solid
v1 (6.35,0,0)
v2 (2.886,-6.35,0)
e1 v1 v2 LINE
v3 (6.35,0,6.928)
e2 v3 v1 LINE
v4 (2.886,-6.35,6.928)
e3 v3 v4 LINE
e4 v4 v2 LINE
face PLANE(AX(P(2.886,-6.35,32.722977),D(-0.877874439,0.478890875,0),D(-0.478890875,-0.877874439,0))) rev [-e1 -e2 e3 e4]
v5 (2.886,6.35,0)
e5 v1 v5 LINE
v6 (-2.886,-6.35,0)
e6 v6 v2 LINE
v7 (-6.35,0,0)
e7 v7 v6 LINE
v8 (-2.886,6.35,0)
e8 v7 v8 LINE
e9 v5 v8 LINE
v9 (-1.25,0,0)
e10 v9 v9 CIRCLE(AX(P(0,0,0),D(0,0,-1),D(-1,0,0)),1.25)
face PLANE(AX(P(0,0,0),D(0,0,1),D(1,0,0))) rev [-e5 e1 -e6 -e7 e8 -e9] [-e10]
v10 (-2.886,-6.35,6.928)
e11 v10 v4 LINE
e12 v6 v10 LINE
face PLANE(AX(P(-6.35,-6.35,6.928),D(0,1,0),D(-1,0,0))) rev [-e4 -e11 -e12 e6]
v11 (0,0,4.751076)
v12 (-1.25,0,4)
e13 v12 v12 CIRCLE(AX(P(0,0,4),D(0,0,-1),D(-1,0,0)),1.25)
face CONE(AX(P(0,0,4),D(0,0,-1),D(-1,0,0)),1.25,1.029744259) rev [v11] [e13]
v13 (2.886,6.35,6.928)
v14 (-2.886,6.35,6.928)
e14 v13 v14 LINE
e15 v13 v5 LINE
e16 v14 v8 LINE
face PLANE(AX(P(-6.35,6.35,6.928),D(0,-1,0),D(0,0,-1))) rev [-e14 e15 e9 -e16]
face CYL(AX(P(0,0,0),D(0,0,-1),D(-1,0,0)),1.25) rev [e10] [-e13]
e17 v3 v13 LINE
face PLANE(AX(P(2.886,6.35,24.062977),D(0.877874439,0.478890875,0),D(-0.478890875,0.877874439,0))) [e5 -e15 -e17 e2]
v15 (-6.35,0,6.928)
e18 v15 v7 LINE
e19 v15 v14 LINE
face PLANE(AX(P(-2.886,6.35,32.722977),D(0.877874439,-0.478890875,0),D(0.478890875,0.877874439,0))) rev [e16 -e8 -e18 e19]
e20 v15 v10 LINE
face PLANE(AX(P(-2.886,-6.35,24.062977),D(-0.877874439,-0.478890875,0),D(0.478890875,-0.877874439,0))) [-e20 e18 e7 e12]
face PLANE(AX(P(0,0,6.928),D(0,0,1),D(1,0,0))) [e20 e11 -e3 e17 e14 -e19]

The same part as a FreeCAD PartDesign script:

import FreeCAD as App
import Part
import Sketcher


def add_polygon(sketch, points):
    """Adds a closed chain of lines whose ends are joined by coincident constraints."""
    first, n = sketch.GeometryCount, len(points)
    for a, b in zip(points, points[1:] + points[:1]):
        sketch.addGeometry(Part.LineSegment(App.Vector(*a, 0), App.Vector(*b, 0)), False)
    for i in range(n):
        sketch.addConstraint(Sketcher.Constraint("Coincident", first + i, 2, first + (i + 1) % n, 1))

doc = App.newDocument("Part")
body = doc.addObject("PartDesign::Body", "Body")

# Sketch on XY plane
sketch1 = doc.addObject("Sketcher::SketchObject", "Sketch")
body.addObject(sketch1)
sketch1.AttachmentSupport = (doc.XY_Plane, [""])
sketch1.MapMode = "FlatFace"
add_polygon(sketch1, [(-6, 6), (-6, -6), (6, -6), (6, 6)])  # lines 0-3
sketch1.addConstraint([
    Sketcher.Constraint("Vertical", 0),
    Sketcher.Constraint("Horizontal", 1),
    Sketcher.Constraint("Vertical", 2),
    Sketcher.Constraint("Horizontal", 3),
    Sketcher.Constraint("Symmetric", 0, 2, 2, 2, -1, 1),
    Sketcher.Constraint("Equal", 3, 0),
    Sketcher.Constraint("DistanceX", 1, 1, 1, 2, 12.7),
])
pad1 = doc.addObject("PartDesign::Pad", "Pad")
body.addObject(pad1)
pad1.Profile = sketch1
pad1.Length = 6.928

# Sketch on XY plane
sketch2 = doc.addObject("Sketcher::SketchObject", "Sketch001")
body.addObject(sketch2)
sketch2.AttachmentSupport = (doc.XY_Plane, [""])
sketch2.MapMode = "FlatFace"
sketch2.addGeometry(Part.Circle(App.Vector(0, 0, 0), App.Vector(0, 0, 1), 1.2), False)
sketch2.addConstraint([
    Sketcher.Constraint("Coincident", 0, 3, -1, 1),
    Sketcher.Constraint("Diameter", 0, 2.5),
])
doc.recompute()
hole = doc.addObject("PartDesign::Hole", "Hole")
body.addObject(hole)
hole.Profile = sketch2
hole.ThreadType = "None"
hole.Diameter = 2.5
hole.DepthType = "Dimension"
hole.Depth = 4
hole.DrillPoint = "Angled"
hole.DrillPointAngle = 118
hole.Reversed = True

# Sketch on XY plane
sketch3 = doc.addObject("Sketcher::SketchObject", "Sketch002")
body.addObject(sketch3)
sketch3.AttachmentSupport = (doc.XY_Plane, [""])
sketch3.MapMode = "FlatFace"
add_polygon(sketch3, [(-17, 43), (3, 6), (6, 0), (26, -36), (99, 3), (56, 82)])  # lines 0-5
sketch3.addConstraint([
    Sketcher.Constraint("PointOnObject", 1, 2, -1),
    Sketcher.Constraint("Parallel", 0, 1),
    Sketcher.Constraint("Parallel", 1, 2),
    Sketcher.Constraint("Perpendicular", 2, 3),
    Sketcher.Constraint("Perpendicular", 3, 4),
    Sketcher.Constraint("Perpendicular", 4, 5),
    Sketcher.Constraint("Equal", 0, 2),
    Sketcher.Constraint("DistanceY", -1, 1, 0, 2, 6.35),
    Sketcher.Constraint("DistanceX", -1, 1, 1, 2, 6.35),
    Sketcher.Constraint("DistanceX", -1, 1, 0, 2, 2.886),
    Sketcher.Constraint("DistanceY", 2, 2, -1, 1, 36.349799),
    Sketcher.Constraint("DistanceX", 2, 2, 3, 2, 72.699599),
])
pocket1 = doc.addObject("PartDesign::Pocket", "Pocket")
body.addObject(pocket1)
pocket1.Profile = sketch3
pocket1.Length = 24.684108
pocket1.Midplane = True
doc.recompute()

mirrored = doc.addObject("PartDesign::Mirrored", "Mirrored")
body.addObject(mirrored)
mirrored.Originals = [pocket1]
mirrored.MirrorPlane = (doc.XZ_Plane, [""])
body.Tip = mirrored
doc.recompute()

mirrored2 = doc.addObject("PartDesign::Mirrored", "Mirrored001")
body.addObject(mirrored2)
mirrored2.Originals = [pocket1]
mirrored2.MirrorPlane = (doc.YZ_Plane, [""])
body.Tip = mirrored2

# Sketch on XY plane
sketch4 = doc.addObject("Sketcher::SketchObject", "Sketch003")
body.addObject(sketch4)
sketch4.AttachmentSupport = (doc.XY_Plane, [""])
sketch4.MapMode = "FlatFace"
add_polygon(sketch4, [(17, -43), (-3, -6), (-6, 0), (-26, 36), (-99, -3), (-56, -82)])  # lines 0-5
sketch4.addConstraint([
    Sketcher.Constraint("PointOnObject", 1, 2, -1),
    Sketcher.Constraint("Parallel", 0, 1),
    Sketcher.Constraint("Parallel", 1, 2),
    Sketcher.Constraint("Perpendicular", 2, 3),
    Sketcher.Constraint("Perpendicular", 3, 4),
    Sketcher.Constraint("Perpendicular", 4, 5),
    Sketcher.Constraint("Equal", 0, 2),
    Sketcher.Constraint("DistanceY", 0, 2, -1, 1, 6.35),
    Sketcher.Constraint("DistanceX", 1, 2, -1, 1, 6.35),
    Sketcher.Constraint("DistanceX", 0, 2, -1, 1, 2.886),
    Sketcher.Constraint("DistanceY", -1, 1, 2, 2, 36.349799),
    Sketcher.Constraint("DistanceX", 3, 2, 2, 2, 72.699599),
])
pocket2 = doc.addObject("PartDesign::Pocket", "Pocket001")
body.addObject(pocket2)
pocket2.Profile = sketch4
pocket2.Length = 24.684108
pocket2.Midplane = True

doc.recompute()
